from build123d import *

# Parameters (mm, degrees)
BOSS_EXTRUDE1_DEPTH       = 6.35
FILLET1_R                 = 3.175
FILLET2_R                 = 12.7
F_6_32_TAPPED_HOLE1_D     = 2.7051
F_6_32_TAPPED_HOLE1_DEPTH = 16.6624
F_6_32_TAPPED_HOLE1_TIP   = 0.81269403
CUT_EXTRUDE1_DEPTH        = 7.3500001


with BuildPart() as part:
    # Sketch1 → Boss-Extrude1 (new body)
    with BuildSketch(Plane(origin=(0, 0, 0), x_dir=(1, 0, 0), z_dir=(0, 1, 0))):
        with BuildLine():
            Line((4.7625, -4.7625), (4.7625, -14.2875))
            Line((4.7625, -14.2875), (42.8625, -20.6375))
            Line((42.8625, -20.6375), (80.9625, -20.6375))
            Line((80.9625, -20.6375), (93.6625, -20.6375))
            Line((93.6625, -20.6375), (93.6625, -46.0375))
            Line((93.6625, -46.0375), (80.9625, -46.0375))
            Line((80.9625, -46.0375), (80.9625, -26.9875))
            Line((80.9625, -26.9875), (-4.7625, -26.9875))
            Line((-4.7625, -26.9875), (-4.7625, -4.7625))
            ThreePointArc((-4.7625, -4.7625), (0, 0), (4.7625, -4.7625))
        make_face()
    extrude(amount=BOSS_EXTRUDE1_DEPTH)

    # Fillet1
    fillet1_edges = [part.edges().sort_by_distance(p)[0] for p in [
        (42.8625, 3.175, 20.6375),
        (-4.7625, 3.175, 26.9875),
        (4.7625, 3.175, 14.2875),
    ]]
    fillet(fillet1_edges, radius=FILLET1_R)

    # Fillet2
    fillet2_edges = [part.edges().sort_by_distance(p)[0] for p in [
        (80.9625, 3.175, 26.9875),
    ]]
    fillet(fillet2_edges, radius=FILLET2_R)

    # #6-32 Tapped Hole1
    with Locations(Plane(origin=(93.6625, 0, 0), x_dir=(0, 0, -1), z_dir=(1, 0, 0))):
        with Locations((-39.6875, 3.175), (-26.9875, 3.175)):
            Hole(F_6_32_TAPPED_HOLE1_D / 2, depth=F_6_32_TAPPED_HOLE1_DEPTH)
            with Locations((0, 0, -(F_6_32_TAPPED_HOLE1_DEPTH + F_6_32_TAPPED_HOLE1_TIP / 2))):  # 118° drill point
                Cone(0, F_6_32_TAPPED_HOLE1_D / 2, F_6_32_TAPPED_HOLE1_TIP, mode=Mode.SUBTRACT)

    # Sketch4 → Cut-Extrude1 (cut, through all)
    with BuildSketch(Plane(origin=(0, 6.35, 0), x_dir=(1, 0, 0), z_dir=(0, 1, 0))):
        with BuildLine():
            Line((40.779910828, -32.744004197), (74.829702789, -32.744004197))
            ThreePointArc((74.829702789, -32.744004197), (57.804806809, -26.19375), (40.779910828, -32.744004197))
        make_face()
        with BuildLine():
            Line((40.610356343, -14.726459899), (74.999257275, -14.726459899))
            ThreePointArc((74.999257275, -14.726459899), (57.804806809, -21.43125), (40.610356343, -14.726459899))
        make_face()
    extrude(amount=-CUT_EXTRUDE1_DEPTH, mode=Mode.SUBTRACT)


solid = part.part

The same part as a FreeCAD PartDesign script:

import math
import FreeCAD as App
import Part
import Sketcher

V = App.Vector
Q = App.Units.Quantity


def edges_at(feature, points):
    """Names of the edges that pass closest to the given points."""
    edges = feature.Shape.Edges
    near = lambda p: min(range(len(edges)), key=lambda i: edges[i].distToShape(Part.Vertex(*p))[0])
    return sorted({f"Edge{near(p) + 1}" for p in points})

doc = App.newDocument("Part")
body = doc.addObject("PartDesign::Body", "Body")

# Sketch on XZ plane
sketch1 = body.newObject("Sketcher::SketchObject", "Sketch")
sketch1.AttachmentSupport = (doc.getObject("XZ_Plane"), [""])
sketch1.MapMode = "FlatFace"
sketch1.addGeometry([
    Part.LineSegment(V(4.7625, 14.2875, 0), V(4.7625, 4.7625, 0)),  # 0
    Part.ArcOfCircle(Part.Circle(V(0, 4.7625, 0), V(0, 0, 1), 4.7625), math.radians(180), math.radians(360)),  # 1
    Part.LineSegment(V(-4.7625, 4.7625, 0), V(-4.7625, 26.9875, 0)),  # 2
    Part.LineSegment(V(-4.7625, 26.9875, 0), V(80.9625, 26.9875, 0)),  # 3
    Part.LineSegment(V(80.9625, 26.9875, 0), V(80.9625, 46.0375, 0)),  # 4
    Part.LineSegment(V(80.9625, 46.0375, 0), V(93.6625, 46.0375, 0)),  # 5
    Part.LineSegment(V(93.6625, 46.0375, 0), V(93.6625, 20.6375, 0)),  # 6
    Part.LineSegment(V(93.6625, 20.6375, 0), V(42.8625, 20.6375, 0)),  # 7
    Part.LineSegment(V(42.8625, 20.6375, 0), V(4.7625, 14.2875, 0)),  # 8
], False)
sketch1.addConstraint([
    Sketcher.Constraint("Tangent", 0, 2, 1, 2),
    Sketcher.Constraint("Tangent", 1, 1, 2, 1),
    Sketcher.Constraint("Coincident", 2, 2, 3, 1),
    Sketcher.Constraint("Coincident", 3, 2, 4, 1),
    Sketcher.Constraint("Coincident", 4, 2, 5, 1),
    Sketcher.Constraint("Coincident", 5, 2, 6, 1),
    Sketcher.Constraint("Coincident", 6, 2, 7, 1),
    Sketcher.Constraint("Coincident", 7, 2, 8, 1),
    Sketcher.Constraint("Coincident", 8, 2, 0, 1),
    Sketcher.Constraint("Vertical", 0),
    Sketcher.Constraint("Vertical", 2),
    Sketcher.Constraint("Horizontal", 3),
    Sketcher.Constraint("Vertical", 4),
    Sketcher.Constraint("Horizontal", 5),
    Sketcher.Constraint("Vertical", 6),
    Sketcher.Constraint("Horizontal", 7),
    Sketcher.Constraint("PointOnObject", 1, 3, -2),
    Sketcher.Constraint("DistanceX", 7, 2, 7, 1, Q("2 in")),
    Sketcher.Constraint("DistanceY", 6, 2, 6, 1, Q("1 in")),
    Sketcher.Constraint("DistanceX", 5, 1, 5, 2, Q("0.5 in")),
    Sketcher.Constraint("Radius", 1, Q("0.1875 in")),
    Sketcher.Constraint("DistanceX", 0, 2, 3, 2, Q("3 in")),
    Sketcher.Constraint("DistanceY", 4, 1, 4, 2, Q("0.75 in")),
    Sketcher.Constraint("DistanceY", 8, 2, 2, 2, Q("0.5 in")),
    Sketcher.Constraint("DistanceY", 0, 2, 0, 1, Q("0.375 in")),
    Sketcher.Constraint("DistanceY", -1, 1, 1, 3, Q("0.1875 in")),
])
pad1 = body.newObject("PartDesign::Pad", "Pad")
pad1.Profile = sketch1
pad1.Length = Q("0.25 in")
pad1.Reversed = True
doc.recompute()

fillet = body.newObject("PartDesign::Fillet", "Fillet")
fillet.Base = (pad1, edges_at(pad1, [(42.862, 3.175, 20.637), (-4.763, 3.175, 26.988), (4.763, 3.175, 14.287)]))
fillet.Radius = Q("0.125 in")
doc.recompute()

fillet2 = body.newObject("PartDesign::Fillet", "Fillet001")
fillet2.Base = (fillet, edges_at(fillet, [(80.963, 3.175, 26.988)]))
fillet2.Radius = Q("0.5 in")

# Sketch on YZ plane
sketch2 = body.newObject("Sketcher::SketchObject", "Sketch001")
sketch2.AttachmentSupport = (doc.getObject("YZ_Plane"), [""])
sketch2.MapMode = "FlatFace"
sketch2.AttachmentOffset = App.Placement(V(0, 0, 3.6875 * 25.4), App.Rotation())
sketch2.addGeometry([
    Part.Circle(V(3.175, 39.6875, 0), V(0, 0, 1), 1.35255),
    Part.Circle(V(3.175, 26.9875, 0), V(0, 0, 1), 1.35255),
], False)
sketch2.addConstraint([
    Sketcher.Constraint("Equal", 0, 1),
    Sketcher.Constraint("Vertical", 0, 3, 1, 3),
    Sketcher.Constraint("Diameter", 0, Q("0.1065 in")),
    Sketcher.Constraint("DistanceY", 1, 3, 0, 3, Q("0.5 in")),
    Sketcher.Constraint("DistanceX", -1, 1, 0, 3, Q("0.125 in")),
    Sketcher.Constraint("DistanceY", -1, 1, 0, 3, Q("1.5625 in")),
])
doc.recompute()
hole = body.newObject("PartDesign::Hole", "Hole")
hole.Profile = sketch2
hole.ThreadType = "None"
hole.Diameter = Q("0.1065 in")
hole.DepthType = "Dimension"
hole.Depth = Q("0.656 in")
hole.DrillPoint = "Angled"
hole.DrillPointAngle = 118

# Sketch on XZ plane
sketch3 = body.newObject("Sketcher::SketchObject", "Sketch002")
sketch3.AttachmentSupport = (doc.getObject("XZ_Plane"), [""])
sketch3.MapMode = "FlatFace"
sketch3.AttachmentOffset = App.Placement(V(0, 0, -0.25 * 25.4), App.Rotation())
sketch3.addGeometry([
    Part.LineSegment(V(40.779911, 32.744004, 0), V(74.829703, 32.744004, 0)),
    Part.ArcOfCircle(Part.Circle(V(57.804807, 51.59375, 0), V(0, 0, 1), 25.4), math.radians(-132.088022), math.radians(-47.911978)),
    Part.LineSegment(V(74.999257, 14.72646, 0), V(40.610356, 14.72646, 0)),
    Part.ArcOfCircle(Part.Circle(V(57.804807, -3.96875, 0), V(0, 0, 1), 25.4), math.radians(47.394481), math.radians(132.605519)),
], False)
sketch3.addConstraint([
    Sketcher.Constraint("Coincident", 0, 1, 1, 1),
    Sketcher.Constraint("Coincident", 1, 2, 0, 2),
    Sketcher.Constraint("Coincident", 2, 1, 3, 1),
    Sketcher.Constraint("Coincident", 3, 2, 2, 2),
    Sketcher.Constraint("Horizontal", 0),
    Sketcher.Constraint("Horizontal", 2),
    Sketcher.Constraint("Equal", 1, 3),
    Sketcher.Constraint("Vertical", 1, 3, 3, 3),
    Sketcher.Constraint("Radius", 1, Q("1 in")),
    Sketcher.Constraint("DistanceY", -1, 1, 1, 3, Q("2.03125 in")),
    Sketcher.Constraint("DistanceY", 3, 3, -1, 1, Q("0.15625 in")),
    Sketcher.Constraint("DistanceX", 2, 2, 2, 1, Q("34.388901 mm")),
    Sketcher.Constraint("DistanceX", 0, 1, 0, 2, Q("34.049792 mm")),
    Sketcher.Constraint("DistanceX", -1, 1, 0, 1, Q("40.779911 mm")),
])
pocket1 = body.newObject("PartDesign::Pocket", "Pocket")
pocket1.Profile = sketch3
pocket1.Type = "ThroughAll"
pocket1.Reversed = True

doc.recompute()
